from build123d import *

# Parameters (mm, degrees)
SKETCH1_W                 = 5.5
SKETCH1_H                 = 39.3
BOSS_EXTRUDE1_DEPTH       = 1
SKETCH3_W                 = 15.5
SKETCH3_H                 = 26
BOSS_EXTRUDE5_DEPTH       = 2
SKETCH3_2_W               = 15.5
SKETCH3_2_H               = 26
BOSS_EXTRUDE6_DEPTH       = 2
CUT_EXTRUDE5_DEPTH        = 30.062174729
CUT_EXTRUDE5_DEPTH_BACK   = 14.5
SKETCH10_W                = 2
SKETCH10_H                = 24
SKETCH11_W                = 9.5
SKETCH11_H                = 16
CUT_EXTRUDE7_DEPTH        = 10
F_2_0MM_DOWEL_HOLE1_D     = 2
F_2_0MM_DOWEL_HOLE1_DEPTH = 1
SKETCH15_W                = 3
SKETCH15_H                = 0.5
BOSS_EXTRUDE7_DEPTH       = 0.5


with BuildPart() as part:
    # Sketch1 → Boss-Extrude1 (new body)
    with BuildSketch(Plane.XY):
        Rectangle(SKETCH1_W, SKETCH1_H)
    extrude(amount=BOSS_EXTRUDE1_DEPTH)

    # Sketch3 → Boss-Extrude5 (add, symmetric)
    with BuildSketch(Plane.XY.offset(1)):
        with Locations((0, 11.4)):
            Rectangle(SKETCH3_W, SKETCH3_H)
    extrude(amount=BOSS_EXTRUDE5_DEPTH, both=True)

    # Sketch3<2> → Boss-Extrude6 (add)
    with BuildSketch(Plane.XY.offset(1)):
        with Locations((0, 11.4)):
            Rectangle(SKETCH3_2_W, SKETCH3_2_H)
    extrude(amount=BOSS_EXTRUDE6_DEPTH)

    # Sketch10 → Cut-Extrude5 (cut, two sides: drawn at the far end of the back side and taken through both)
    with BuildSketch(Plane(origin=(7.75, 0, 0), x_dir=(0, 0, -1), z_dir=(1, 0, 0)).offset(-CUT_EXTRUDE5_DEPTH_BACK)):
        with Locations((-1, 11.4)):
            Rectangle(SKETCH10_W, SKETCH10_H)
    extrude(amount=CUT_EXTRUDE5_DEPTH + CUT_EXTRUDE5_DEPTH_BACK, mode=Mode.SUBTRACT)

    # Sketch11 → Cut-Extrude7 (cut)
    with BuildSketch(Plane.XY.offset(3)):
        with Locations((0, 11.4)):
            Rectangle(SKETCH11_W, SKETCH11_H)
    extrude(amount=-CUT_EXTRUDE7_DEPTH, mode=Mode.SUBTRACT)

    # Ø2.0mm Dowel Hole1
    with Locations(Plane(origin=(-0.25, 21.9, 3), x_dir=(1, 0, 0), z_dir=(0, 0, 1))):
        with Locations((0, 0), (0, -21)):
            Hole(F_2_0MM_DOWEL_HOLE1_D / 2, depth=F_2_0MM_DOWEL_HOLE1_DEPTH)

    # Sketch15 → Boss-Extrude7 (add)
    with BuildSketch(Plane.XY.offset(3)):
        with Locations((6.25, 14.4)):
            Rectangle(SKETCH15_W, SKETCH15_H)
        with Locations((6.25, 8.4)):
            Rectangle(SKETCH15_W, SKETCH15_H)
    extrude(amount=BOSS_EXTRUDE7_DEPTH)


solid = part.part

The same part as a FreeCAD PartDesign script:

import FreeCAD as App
import Part
import Sketcher
Q = App.Units.Quantity


def add_polygon(sketch, points):
    """Adds a closed chain of lines whose ends are joined by coincident constraints."""
    first, n = sketch.GeometryCount, len(points)
    for a, b in zip(points, points[1:] + points[:1]):
        sketch.addGeometry(Part.LineSegment(App.Vector(*a, 0), App.Vector(*b, 0)), False)
    for i in range(n):
        sketch.addConstraint(Sketcher.Constraint("Coincident", first + i, 2, first + (i + 1) % n, 1))

doc = App.newDocument("Part")
body = doc.addObject("PartDesign::Body", "Body")

sketch1 = body.newObject("Sketcher::SketchObject", "Sketch")
sketch1.AttachmentSupport = (doc.getObject("XY_Plane"), [""])
sketch1.MapMode = "FlatFace"
add_polygon(sketch1, [(-3, 20), (-3, -20), (3, -20), (3, 20)])
sketch1.addConstraint([
    Sketcher.Constraint("Vertical", 0),
    Sketcher.Constraint("Horizontal", 1),
    Sketcher.Constraint("Vertical", 2),
    Sketcher.Constraint("Horizontal", 3),
    Sketcher.Constraint("Symmetric", 0, 2, 2, 2, -1, 1),
    Sketcher.Constraint("DistanceX", 1, 1, 1, 2, Q("5.5 mm")),
    Sketcher.Constraint("DistanceY", 0, 2, 0, 1, Q("39.3 mm")),
])
pad1 = body.newObject("PartDesign::Pad", "Pad")
pad1.Profile = sketch1
pad1.Length = 1

sketch2 = body.newObject("Sketcher::SketchObject", "Sketch001")
sketch2.AttachmentSupport = (doc.getObject("XY_Plane"), [""])
sketch2.MapMode = "FlatFace"
sketch2.AttachmentOffset = App.Placement(App.Vector(0, 0, 1), App.Rotation())
add_polygon(sketch2, [(-8, 24), (-8, -2), (8, -2), (8, 24)])
sketch2.addConstraint([
    Sketcher.Constraint("Vertical", 0),
    Sketcher.Constraint("Horizontal", 1),
    Sketcher.Constraint("Vertical", 2),
    Sketcher.Constraint("Horizontal", 3),
    Sketcher.Constraint("DistanceY", 0, 2, 0, 1, Q("26 mm")),
    Sketcher.Constraint("DistanceX", 1, 1, 1, 2, Q("15.5 mm")),
    Sketcher.Constraint("DistanceY", 0, 2, -1, 1, Q("1.6 mm")),
    Sketcher.Constraint("DistanceX", 0, 2, -1, 1, Q("7.75 mm")),
])
pad2 = body.newObject("PartDesign::Pad", "Pad001")
pad2.Profile = sketch2
pad2.Length = 4
pad2.Midplane = True

sketch3 = body.newObject("Sketcher::SketchObject", "Sketch002")
sketch3.AttachmentSupport = (doc.getObject("XY_Plane"), [""])
sketch3.MapMode = "FlatFace"
sketch3.AttachmentOffset = App.Placement(App.Vector(0, 0, 1), App.Rotation())
add_polygon(sketch3, [(-8, 24), (-8, -2), (8, -2), (8, 24)])
sketch3.addConstraint([
    Sketcher.Constraint("Vertical", 0),
    Sketcher.Constraint("Horizontal", 1),
    Sketcher.Constraint("Vertical", 2),
    Sketcher.Constraint("Horizontal", 3),
    Sketcher.Constraint("DistanceY", 0, 2, 0, 1, Q("26 mm")),
    Sketcher.Constraint("DistanceX", 1, 1, 1, 2, Q("15.5 mm")),
    Sketcher.Constraint("DistanceY", 0, 2, -1, 1, Q("1.6 mm")),
    Sketcher.Constraint("DistanceX", 0, 2, -1, 1, Q("7.75 mm")),
])
pad3 = body.newObject("PartDesign::Pad", "Pad002")
pad3.Profile = sketch3
pad3.Length = 2

sketch4 = body.newObject("Sketcher::SketchObject", "Sketch003")
sketch4.AttachmentSupport = (doc.getObject("YZ_Plane"), [""])
sketch4.MapMode = "FlatFace"
sketch4.AttachmentOffset = App.Placement(App.Vector(0, 0, 7.75), App.Rotation())
add_polygon(sketch4, [(23.4, 2), (-0.6, 2), (-0.6, 0), (23.4, 0)])
sketch4.addConstraint([
    Sketcher.Constraint("Horizontal", 0),
    Sketcher.Constraint("Vertical", 1),
    Sketcher.Constraint("Horizontal", 2),
    Sketcher.Constraint("Vertical", 3),
    Sketcher.Constraint("PointOnObject", 1, 2, -1),
    Sketcher.Constraint("DistanceX", 0, 2, 0, 1, Q("24 mm")),
    Sketcher.Constraint("DistanceY", 1, 2, 1, 1, Q("2 mm")),
    Sketcher.Constraint("DistanceX", 0, 2, -1, 1, Q("0.6 mm")),
])
pocket1 = body.newObject("PartDesign::Pocket", "Pocket")
pocket1.Profile = sketch4
pocket1.Type = "TwoLengths"
pocket1.Length = 30.062175
pocket1.Length2 = 14.5
pocket1.Reversed = True

sketch5 = body.newObject("Sketcher::SketchObject", "Sketch004")
sketch5.AttachmentSupport = (doc.getObject("XY_Plane"), [""])
sketch5.MapMode = "FlatFace"
sketch5.AttachmentOffset = App.Placement(App.Vector(0, 0, 3), App.Rotation())
add_polygon(sketch5, [(-5, 19), (-5, 3), (5, 3), (5, 19)])
sketch5.addConstraint([
    Sketcher.Constraint("Vertical", 0),
    Sketcher.Constraint("Horizontal", 1),
    Sketcher.Constraint("Vertical", 2),
    Sketcher.Constraint("Horizontal", 3),
    Sketcher.Constraint("DistanceY", 0, 2, 0, 1, Q("16 mm")),
    Sketcher.Constraint("DistanceX", 1, 1, 1, 2, Q("9.5 mm")),
    Sketcher.Constraint("DistanceY", -1, 1, 0, 2, Q("3.4 mm")),
    Sketcher.Constraint("DistanceX", 0, 2, -1, 1, Q("4.75 mm")),
])
pocket2 = body.newObject("PartDesign::Pocket", "Pocket001")
pocket2.Profile = sketch5
pocket2.Length = 10

sketch6 = body.newObject("Sketcher::SketchObject", "Sketch005")
sketch6.AttachmentSupport = (doc.getObject("XY_Plane"), [""])
sketch6.MapMode = "FlatFace"
sketch6.AttachmentOffset = App.Placement(App.Vector(0, 0, 3), App.Rotation())
sketch6.addGeometry([
    Part.Circle(App.Vector(-0.2, 21.9, 0), App.Vector(0, 0, 1), 1),
    Part.Circle(App.Vector(-0.2, 0.9, 0), App.Vector(0, 0, 1), 1),
], False)
sketch6.addConstraint([
    Sketcher.Constraint("Equal", 0, 1),
    Sketcher.Constraint("Vertical", 0, 3, 1, 3),
    Sketcher.Constraint("Diameter", 0, Q("2 mm")),
    Sketcher.Constraint("DistanceY", 1, 3, 0, 3, Q("21 mm")),
    Sketcher.Constraint("DistanceY", -1, 1, 0, 3, Q("21.9 mm")),
    Sketcher.Constraint("DistanceX", 0, 3, -1, 1, Q("0.25 mm")),
])
doc.recompute()
hole = body.newObject("PartDesign::Hole", "Hole")
hole.Profile = sketch6
hole.ThreadType = "None"
hole.Diameter = 2
hole.DepthType = "Dimension"
hole.Depth = 1
hole.DrillPoint = "Flat"

sketch7 = body.newObject("Sketcher::SketchObject", "Sketch006")
sketch7.AttachmentSupport = (doc.getObject("XY_Plane"), [""])
sketch7.MapMode = "FlatFace"
sketch7.AttachmentOffset = App.Placement(App.Vector(0, 0, 3), App.Rotation())
add_polygon(sketch7, [(4.8, 14.7), (4.8, 14.2), (7.8, 14.2), (7.8, 14.7)])
add_polygon(sketch7, [(4.8, 8.7), (4.8, 8.2), (7.8, 8.2), (7.8, 8.7)])
sketch7.addConstraint([
    Sketcher.Constraint("Vertical", 0),
    Sketcher.Constraint("Horizontal", 1),
    Sketcher.Constraint("Vertical", 2),
    Sketcher.Constraint("Horizontal", 3),
    Sketcher.Constraint("Vertical", 4),
    Sketcher.Constraint("Horizontal", 5),
    Sketcher.Constraint("Vertical", 6),
    Sketcher.Constraint("Horizontal", 7),
    Sketcher.Constraint("Vertical", 3, 2, 4, 2),
    Sketcher.Constraint("Vertical", 2, 2, 5, 2),
    Sketcher.Constraint("Equal", 2, 4),
    Sketcher.Constraint("DistanceX", 1, 1, 1, 2, Q("3 mm")),
    Sketcher.Constraint("DistanceY", 0, 2, 0, 1, Q("0.5 mm")),
    Sketcher.Constraint("DistanceY", 4, 2, 0, 2, Q("6 mm")),
    Sketcher.Constraint("DistanceX", -1, 1, 0, 2, Q("4.75 mm")),
    Sketcher.Constraint("DistanceY", -1, 1, 0, 2, Q("14.15 mm")),
])
pad4 = body.newObject("PartDesign::Pad", "Pad003")
pad4.Profile = sketch7
pad4.Length = 0.5

doc.recompute()
